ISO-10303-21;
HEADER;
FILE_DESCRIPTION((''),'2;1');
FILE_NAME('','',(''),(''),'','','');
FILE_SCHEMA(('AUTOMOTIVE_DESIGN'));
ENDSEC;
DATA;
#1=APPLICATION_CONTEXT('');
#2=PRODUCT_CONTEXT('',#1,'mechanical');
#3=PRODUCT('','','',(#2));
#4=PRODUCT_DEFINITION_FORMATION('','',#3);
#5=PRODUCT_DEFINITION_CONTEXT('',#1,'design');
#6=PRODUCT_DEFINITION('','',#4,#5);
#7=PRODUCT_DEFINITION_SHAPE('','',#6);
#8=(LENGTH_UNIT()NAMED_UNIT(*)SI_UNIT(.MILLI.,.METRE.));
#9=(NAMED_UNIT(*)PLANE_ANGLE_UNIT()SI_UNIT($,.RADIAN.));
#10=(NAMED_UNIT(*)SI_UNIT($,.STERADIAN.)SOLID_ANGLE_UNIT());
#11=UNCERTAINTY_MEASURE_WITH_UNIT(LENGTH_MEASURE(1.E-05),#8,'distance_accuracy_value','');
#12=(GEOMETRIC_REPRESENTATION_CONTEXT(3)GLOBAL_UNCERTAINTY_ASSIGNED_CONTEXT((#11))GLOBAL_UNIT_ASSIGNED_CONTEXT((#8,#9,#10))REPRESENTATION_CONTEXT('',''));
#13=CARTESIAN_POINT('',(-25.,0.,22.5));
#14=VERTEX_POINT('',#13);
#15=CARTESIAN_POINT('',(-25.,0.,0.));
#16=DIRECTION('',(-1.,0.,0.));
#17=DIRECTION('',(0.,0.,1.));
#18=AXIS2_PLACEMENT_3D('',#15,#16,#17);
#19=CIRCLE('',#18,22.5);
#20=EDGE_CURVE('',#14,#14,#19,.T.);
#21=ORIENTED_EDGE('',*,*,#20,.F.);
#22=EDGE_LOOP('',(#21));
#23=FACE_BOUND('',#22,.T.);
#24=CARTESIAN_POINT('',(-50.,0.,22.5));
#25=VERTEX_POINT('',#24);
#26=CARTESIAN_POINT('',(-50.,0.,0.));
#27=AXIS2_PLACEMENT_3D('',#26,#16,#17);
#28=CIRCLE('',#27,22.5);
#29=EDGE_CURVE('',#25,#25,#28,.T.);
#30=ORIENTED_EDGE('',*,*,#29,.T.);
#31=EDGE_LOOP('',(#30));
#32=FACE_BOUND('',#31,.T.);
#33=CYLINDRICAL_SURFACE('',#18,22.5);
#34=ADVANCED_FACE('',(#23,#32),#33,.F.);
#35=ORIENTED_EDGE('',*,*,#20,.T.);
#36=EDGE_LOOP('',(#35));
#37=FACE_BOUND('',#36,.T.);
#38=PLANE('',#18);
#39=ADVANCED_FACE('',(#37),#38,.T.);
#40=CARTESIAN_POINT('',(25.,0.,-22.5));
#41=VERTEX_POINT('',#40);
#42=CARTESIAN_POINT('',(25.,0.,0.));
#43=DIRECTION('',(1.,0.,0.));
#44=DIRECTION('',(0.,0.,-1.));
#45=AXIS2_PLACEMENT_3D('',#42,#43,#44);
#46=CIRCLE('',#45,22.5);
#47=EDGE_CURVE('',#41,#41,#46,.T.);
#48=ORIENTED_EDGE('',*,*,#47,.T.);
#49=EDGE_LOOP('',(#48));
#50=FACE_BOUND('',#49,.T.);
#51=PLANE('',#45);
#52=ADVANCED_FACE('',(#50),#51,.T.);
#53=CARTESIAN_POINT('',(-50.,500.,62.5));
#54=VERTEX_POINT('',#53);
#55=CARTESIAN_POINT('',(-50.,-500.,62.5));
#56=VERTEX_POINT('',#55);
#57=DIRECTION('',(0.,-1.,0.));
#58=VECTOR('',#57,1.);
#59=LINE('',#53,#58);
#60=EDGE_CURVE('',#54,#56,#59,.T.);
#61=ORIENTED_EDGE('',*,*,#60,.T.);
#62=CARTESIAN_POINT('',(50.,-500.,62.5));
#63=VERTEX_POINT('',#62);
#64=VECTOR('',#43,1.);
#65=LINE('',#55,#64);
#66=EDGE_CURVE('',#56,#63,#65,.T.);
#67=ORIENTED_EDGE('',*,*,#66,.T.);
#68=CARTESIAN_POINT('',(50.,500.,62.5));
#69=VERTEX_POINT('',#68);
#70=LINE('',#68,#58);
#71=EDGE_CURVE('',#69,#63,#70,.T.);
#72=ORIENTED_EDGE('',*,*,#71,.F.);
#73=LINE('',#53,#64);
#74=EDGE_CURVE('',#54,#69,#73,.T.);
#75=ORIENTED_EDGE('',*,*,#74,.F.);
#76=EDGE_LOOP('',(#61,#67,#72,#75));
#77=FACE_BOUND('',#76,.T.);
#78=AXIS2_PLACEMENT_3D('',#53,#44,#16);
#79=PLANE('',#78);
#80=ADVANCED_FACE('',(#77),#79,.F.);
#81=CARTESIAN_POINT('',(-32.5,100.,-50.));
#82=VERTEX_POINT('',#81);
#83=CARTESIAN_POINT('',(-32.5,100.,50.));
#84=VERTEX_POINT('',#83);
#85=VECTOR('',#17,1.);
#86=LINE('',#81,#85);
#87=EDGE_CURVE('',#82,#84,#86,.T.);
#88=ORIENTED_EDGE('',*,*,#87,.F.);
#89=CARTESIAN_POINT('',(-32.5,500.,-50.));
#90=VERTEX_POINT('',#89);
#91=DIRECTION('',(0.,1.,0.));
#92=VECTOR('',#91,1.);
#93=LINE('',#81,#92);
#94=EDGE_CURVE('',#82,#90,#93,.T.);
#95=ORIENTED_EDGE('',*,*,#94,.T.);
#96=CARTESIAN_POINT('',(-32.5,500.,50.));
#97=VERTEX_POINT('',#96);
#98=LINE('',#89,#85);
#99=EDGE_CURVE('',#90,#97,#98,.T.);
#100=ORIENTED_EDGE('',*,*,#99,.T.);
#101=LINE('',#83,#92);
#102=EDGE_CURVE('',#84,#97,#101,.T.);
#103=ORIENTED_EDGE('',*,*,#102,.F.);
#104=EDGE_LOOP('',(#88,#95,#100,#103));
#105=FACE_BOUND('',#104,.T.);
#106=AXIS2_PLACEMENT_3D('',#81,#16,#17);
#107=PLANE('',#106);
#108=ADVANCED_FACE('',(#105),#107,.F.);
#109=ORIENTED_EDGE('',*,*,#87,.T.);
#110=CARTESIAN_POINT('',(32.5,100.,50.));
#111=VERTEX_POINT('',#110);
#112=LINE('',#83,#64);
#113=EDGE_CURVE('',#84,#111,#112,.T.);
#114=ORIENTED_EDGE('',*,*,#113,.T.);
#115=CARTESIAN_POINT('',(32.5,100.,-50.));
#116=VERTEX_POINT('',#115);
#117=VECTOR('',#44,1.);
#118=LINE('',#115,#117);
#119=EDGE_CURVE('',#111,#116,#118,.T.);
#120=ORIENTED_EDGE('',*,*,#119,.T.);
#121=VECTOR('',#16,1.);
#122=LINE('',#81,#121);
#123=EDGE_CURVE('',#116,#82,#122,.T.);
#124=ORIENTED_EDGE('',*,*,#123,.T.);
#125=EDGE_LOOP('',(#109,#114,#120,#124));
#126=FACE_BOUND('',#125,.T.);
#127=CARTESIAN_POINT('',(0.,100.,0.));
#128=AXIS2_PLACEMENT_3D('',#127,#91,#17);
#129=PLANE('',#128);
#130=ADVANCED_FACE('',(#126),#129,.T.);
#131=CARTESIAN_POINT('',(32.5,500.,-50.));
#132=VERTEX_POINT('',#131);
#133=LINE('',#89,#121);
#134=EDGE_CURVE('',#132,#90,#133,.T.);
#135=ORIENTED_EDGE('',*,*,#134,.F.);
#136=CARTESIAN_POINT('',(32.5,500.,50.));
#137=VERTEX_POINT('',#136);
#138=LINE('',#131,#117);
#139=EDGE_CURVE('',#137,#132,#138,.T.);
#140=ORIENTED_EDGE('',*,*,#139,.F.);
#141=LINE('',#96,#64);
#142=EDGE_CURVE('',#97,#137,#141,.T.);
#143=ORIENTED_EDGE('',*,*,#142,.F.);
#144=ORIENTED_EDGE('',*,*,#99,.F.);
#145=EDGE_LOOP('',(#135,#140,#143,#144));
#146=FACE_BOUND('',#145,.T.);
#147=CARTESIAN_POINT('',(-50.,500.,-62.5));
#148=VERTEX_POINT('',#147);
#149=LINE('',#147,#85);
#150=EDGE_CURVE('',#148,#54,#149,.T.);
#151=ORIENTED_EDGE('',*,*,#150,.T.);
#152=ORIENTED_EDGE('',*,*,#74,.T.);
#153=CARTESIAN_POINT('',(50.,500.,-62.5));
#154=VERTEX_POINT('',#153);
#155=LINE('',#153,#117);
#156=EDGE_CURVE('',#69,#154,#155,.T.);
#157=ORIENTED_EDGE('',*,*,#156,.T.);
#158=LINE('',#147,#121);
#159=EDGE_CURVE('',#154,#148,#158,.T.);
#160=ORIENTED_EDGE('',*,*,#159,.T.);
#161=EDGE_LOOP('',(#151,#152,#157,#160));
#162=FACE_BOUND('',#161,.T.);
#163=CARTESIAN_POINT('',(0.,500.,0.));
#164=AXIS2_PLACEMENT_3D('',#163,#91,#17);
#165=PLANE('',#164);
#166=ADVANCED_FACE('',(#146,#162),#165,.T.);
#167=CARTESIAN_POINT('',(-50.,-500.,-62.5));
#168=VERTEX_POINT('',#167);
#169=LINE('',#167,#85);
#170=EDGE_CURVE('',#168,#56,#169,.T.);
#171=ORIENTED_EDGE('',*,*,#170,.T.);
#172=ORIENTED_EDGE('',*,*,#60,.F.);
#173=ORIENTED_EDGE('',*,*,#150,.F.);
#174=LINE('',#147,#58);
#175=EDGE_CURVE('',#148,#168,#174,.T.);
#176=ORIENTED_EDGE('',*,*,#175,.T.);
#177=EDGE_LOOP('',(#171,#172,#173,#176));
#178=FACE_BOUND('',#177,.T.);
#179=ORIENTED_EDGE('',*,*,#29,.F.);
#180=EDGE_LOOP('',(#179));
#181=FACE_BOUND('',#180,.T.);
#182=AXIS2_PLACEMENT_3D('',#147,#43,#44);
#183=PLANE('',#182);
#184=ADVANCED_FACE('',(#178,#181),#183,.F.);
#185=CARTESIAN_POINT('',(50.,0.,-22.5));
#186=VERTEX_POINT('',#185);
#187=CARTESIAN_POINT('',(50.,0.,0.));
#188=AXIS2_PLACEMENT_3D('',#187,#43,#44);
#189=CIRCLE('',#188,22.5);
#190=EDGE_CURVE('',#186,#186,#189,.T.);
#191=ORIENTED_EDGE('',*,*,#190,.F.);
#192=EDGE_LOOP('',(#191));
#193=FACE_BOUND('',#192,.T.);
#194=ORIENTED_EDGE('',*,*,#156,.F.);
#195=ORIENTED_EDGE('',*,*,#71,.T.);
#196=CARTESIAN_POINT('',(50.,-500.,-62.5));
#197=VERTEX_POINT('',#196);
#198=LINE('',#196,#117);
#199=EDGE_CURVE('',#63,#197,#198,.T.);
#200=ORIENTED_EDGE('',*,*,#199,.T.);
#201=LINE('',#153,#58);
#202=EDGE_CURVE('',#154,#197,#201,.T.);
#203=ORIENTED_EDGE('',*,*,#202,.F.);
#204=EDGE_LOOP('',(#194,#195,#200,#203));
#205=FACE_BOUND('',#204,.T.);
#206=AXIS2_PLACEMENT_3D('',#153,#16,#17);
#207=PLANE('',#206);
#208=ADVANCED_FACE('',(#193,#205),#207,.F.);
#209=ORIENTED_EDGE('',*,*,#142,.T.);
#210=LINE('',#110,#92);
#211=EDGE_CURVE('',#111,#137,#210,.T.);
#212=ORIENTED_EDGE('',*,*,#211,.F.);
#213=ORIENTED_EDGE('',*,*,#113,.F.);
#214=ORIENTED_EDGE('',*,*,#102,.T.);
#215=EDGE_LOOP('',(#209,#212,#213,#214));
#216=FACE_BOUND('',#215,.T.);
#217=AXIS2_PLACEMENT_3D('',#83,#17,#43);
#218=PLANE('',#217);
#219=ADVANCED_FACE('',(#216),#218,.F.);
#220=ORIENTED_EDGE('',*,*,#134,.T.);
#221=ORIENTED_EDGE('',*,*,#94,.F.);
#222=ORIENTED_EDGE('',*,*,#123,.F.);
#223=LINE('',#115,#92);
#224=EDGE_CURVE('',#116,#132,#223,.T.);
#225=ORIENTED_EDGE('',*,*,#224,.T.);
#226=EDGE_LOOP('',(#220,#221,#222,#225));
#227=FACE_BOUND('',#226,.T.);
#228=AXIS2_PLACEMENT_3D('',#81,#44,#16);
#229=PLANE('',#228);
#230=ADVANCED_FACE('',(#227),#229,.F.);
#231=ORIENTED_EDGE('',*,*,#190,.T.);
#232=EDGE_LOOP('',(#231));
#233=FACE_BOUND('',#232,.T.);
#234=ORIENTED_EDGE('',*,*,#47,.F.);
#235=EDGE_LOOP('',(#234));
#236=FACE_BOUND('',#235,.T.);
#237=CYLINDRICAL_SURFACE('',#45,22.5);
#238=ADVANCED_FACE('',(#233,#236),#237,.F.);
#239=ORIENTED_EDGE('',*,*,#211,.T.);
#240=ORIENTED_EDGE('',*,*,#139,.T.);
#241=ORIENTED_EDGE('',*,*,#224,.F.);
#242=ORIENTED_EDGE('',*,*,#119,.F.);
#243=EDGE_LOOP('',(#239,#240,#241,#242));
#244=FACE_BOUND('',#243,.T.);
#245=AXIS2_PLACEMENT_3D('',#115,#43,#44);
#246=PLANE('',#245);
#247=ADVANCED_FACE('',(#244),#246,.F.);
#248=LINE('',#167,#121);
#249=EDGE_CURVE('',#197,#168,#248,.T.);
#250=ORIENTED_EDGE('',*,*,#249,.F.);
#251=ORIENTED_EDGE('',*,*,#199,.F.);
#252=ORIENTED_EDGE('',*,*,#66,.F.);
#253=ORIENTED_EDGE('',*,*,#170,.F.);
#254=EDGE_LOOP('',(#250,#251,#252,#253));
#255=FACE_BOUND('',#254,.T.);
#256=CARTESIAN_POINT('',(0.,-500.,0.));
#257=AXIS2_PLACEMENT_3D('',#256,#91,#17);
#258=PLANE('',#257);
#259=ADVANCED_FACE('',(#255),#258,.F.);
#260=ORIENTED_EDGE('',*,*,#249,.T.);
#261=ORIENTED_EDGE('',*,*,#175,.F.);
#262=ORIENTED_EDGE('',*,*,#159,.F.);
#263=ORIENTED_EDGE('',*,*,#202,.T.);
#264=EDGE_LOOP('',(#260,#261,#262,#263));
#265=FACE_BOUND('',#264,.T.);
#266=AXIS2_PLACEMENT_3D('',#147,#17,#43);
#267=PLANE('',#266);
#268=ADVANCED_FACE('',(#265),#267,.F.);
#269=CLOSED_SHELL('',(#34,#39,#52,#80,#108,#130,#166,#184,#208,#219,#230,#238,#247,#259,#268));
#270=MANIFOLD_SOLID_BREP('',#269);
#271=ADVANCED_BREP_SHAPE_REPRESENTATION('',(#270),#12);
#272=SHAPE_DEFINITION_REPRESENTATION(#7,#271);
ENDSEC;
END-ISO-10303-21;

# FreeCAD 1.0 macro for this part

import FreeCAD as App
import Part
import Sketcher
from FreeCAD import Vector


def add_polygon(sketch, points):
    """Adds a closed chain of lines whose ends are joined by coincident constraints."""
    first, n = sketch.GeometryCount, len(points)
    for a, b in zip(points, points[1:] + points[:1]):
        sketch.addGeometry(Part.LineSegment(App.Vector(*a, 0), App.Vector(*b, 0)), False)
    for i in range(n):
        sketch.addConstraint(Sketcher.Constraint("Coincident", first + i, 2, first + (i + 1) % n, 1))

doc = App.newDocument("Part")
body = doc.addObject("PartDesign::Body", "Body")

sketch1 = body.newObject("Sketcher::SketchObject", "Sketch")
sketch1.AttachmentSupport = (doc.getObject("XZ_Plane"), [""])
sketch1.MapMode = "FlatFace"
add_polygon(sketch1, [(-50, -62), (-50, 62), (50, 62), (50, -62)])
sketch1.addConstraint([
    Sketcher.Constraint("Vertical", 0),
    Sketcher.Constraint("Horizontal", 1),
    Sketcher.Constraint("Vertical", 2),
    Sketcher.Constraint("Horizontal", 3),
    Sketcher.Constraint("Symmetric", 0, 2, 2, 2, -1, 1),
    Sketcher.Constraint("DistanceX", 1, 1, 1, 2, 100.0),
    Sketcher.Constraint("DistanceY", 0, 1, 0, 2, 125.0),
])
pad1 = body.newObject("PartDesign::Pad", "Pad")
pad1.Profile = sketch1
pad1.Length = 1000
pad1.Midplane = True

sketch2 = body.newObject("Sketcher::SketchObject", "Sketch001")
sketch2.AttachmentSupport = (doc.getObject("YZ_Plane"), [""])
sketch2.MapMode = "FlatFace"
sketch2.AttachmentOffset = App.Placement(Vector(0, 0, 50), App.Rotation())
sketch2.addGeometry(Part.Circle(Vector(0, 0, 0), Vector(0, 0, 1), 22), False)
sketch2.addConstraint([
    Sketcher.Constraint("Coincident", 0, 3, -1, 1),
    Sketcher.Constraint("Diameter", 0, 45.0),
])
pocket1 = body.newObject("PartDesign::Pocket", "Pocket")
pocket1.Profile = sketch2
pocket1.Length = 25

sketch3 = body.newObject("Sketcher::SketchObject", "Sketch002")
sketch3.AttachmentSupport = (doc.getObject("YZ_Plane"), [""])
sketch3.MapMode = "FlatFace"
sketch3.AttachmentOffset = App.Placement(Vector(0, 0, -25), App.Rotation())
sketch3.addGeometry(Part.Circle(Vector(0, 0, 0), Vector(0, 0, 1), 22), False)
sketch3.addConstraint([
    Sketcher.Constraint("Coincident", 0, 3, -1, 1),
    Sketcher.Constraint("Diameter", 0, 45.0),
])
pocket2 = body.newObject("PartDesign::Pocket", "Pocket001")
pocket2.Profile = sketch3
pocket2.Length = 25

sketch4 = body.newObject("Sketcher::SketchObject", "Sketch003")
sketch4.AttachmentSupport = (doc.getObject("XZ_Plane"), [""])
sketch4.MapMode = "FlatFace"
sketch4.AttachmentOffset = App.Placement(Vector(0, 0, -500), App.Rotation())
add_polygon(sketch4, [(-32, -50), (-32, 50), (32, 50), (32, -50)])
sketch4.addConstraint([
    Sketcher.Constraint("Vertical", 0),
    Sketcher.Constraint("Horizontal", 1),
    Sketcher.Constraint("Vertical", 2),
    Sketcher.Constraint("Horizontal", 3),
    Sketcher.Constraint("Symmetric", 0, 2, 2, 2, -1, 1),
    Sketcher.Constraint("DistanceX", 1, 1, 1, 2, 65.0),
    Sketcher.Constraint("DistanceY", 0, 1, 0, 2, 100.0),
])
pocket3 = body.newObject("PartDesign::Pocket", "Pocket002")
pocket3.Profile = sketch4
pocket3.Length = 400
pocket3.Reversed = True

doc.recompute()
